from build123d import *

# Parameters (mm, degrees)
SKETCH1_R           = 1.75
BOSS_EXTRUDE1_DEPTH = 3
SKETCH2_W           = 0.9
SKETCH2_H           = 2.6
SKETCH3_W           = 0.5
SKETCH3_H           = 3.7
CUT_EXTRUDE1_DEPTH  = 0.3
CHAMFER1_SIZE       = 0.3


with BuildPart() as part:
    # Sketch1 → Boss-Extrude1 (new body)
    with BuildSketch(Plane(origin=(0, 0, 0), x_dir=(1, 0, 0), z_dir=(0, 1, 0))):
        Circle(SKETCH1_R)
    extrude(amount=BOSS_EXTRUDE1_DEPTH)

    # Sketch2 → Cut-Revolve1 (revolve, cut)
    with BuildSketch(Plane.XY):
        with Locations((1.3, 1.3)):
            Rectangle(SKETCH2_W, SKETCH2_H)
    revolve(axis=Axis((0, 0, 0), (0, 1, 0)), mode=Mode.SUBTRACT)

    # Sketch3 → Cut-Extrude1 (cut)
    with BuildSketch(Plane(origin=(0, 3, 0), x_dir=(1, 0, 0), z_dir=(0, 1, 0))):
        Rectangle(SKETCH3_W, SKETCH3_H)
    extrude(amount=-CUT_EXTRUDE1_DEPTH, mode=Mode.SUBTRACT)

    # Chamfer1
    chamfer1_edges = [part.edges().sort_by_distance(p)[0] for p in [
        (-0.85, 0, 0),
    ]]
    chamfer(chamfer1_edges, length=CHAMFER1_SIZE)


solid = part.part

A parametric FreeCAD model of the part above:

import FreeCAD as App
import Part
import Sketcher
from FreeCAD import Vector


def edges_at(feature, points):
    """Names of the edges that pass closest to the given points."""
    edges = feature.Shape.Edges
    near = lambda p: min(range(len(edges)), key=lambda i: edges[i].distToShape(Part.Vertex(*p))[0])
    return sorted({f"Edge{near(p) + 1}" for p in points})


def add_polygon(sketch, points):
    """Adds a closed chain of lines whose ends are joined by coincident constraints."""
    first, n = sketch.GeometryCount, len(points)
    for a, b in zip(points, points[1:] + points[:1]):
        sketch.addGeometry(Part.LineSegment(App.Vector(*a, 0), App.Vector(*b, 0)), False)
    for i in range(n):
        sketch.addConstraint(Sketcher.Constraint("Coincident", first + i, 2, first + (i + 1) % n, 1))

doc = App.newDocument("Part")
params = doc.addObject("Spreadsheet::Sheet", "Params")
for row, (alias, value) in enumerate([
    ("sketch1_diameter", "3.5 mm"),
    ("pad1_length", "3 mm"),
    ("sketch2_width", "0.9 mm"),
    ("sketch2_height", "2.6 mm"),
    ("groove_angle", "360 deg"),
    ("sketch3_width", "0.5 mm"),
    ("sketch3_height", "3.7 mm"),
    ("pocket1_length", "0.3 mm"),
    ("chamfer_size", "0.3 mm"),
], start=1):
    params.set(f"A{row}", alias)
    params.set(f"B{row}", "=" + value)
    params.setAlias(f"B{row}", alias)

body = doc.addObject("PartDesign::Body", "Body")

sketch1 = doc.addObject("Sketcher::SketchObject", "Sketch")
body.addObject(sketch1)
sketch1.AttachmentSupport = (doc.XZ_Plane, [""])
sketch1.MapMode = "FlatFace"
sketch1.addGeometry(Part.Circle(Vector(0, 0, 0), Vector(0, 0, 1), 1.8), False)
sketch1.addConstraint([
    Sketcher.Constraint("Coincident", 0, 3, -1, 1),
    Sketcher.Constraint("Diameter", 0, 3.5),
])
sketch1.setExpression("Constraints[1]", "Params.sketch1_diameter")
pad1 = doc.addObject("PartDesign::Pad", "Pad")
body.addObject(pad1)
pad1.Profile = sketch1
pad1.setExpression("Length", "Params.pad1_length")
pad1.Reversed = True

sketch2 = doc.addObject("Sketcher::SketchObject", "Sketch001")
body.addObject(sketch2)
sketch2.AttachmentSupport = (doc.XY_Plane, [""])
sketch2.MapMode = "FlatFace"
add_polygon(sketch2, [(0.8, 2.6), (0.8, 0), (1.8, 0), (1.8, 2.6)])
sketch2.addConstraint([
    Sketcher.Constraint("Vertical", 0),
    Sketcher.Constraint("Horizontal", 1),
    Sketcher.Constraint("Vertical", 2),
    Sketcher.Constraint("Horizontal", 3),
    Sketcher.Constraint("PointOnObject", 0, 2, -1),
    Sketcher.Constraint("DistanceX", 1, 1, 1, 2, 0.9),
    Sketcher.Constraint("DistanceY", 0, 2, 0, 1, 2.6),
    Sketcher.Constraint("DistanceX", -1, 1, 0, 2, 0.85),
])
sketch2.setExpression("Constraints[9]", "Params.sketch2_width")
sketch2.setExpression("Constraints[10]", "Params.sketch2_height")
groove = doc.addObject("PartDesign::Groove", "Groove")
body.addObject(groove)
groove.Profile = sketch2
groove.ReferenceAxis = (sketch2, ["V_Axis"])
groove.setExpression("Angle", "Params.groove_angle")

sketch3 = doc.addObject("Sketcher::SketchObject", "Sketch002")
body.addObject(sketch3)
sketch3.AttachmentSupport = (doc.XZ_Plane, [""])
sketch3.MapMode = "FlatFace"
sketch3.AttachmentOffset = App.Placement(Vector(0, 0, -3), App.Rotation())
add_polygon(sketch3, [(-0.2, -1.9), (-0.2, 1.9), (0.2, 1.9), (0.2, -1.9)])
sketch3.addConstraint([
    Sketcher.Constraint("Vertical", 0),
    Sketcher.Constraint("Horizontal", 1),
    Sketcher.Constraint("Vertical", 2),
    Sketcher.Constraint("Horizontal", 3),
    Sketcher.Constraint("Symmetric", 0, 2, 2, 2, -1, 1),
    Sketcher.Constraint("DistanceX", 1, 1, 1, 2, 0.5),
    Sketcher.Constraint("DistanceY", 0, 1, 0, 2, 3.7),
])
sketch3.setExpression("Constraints[9]", "Params.sketch3_width")
sketch3.setExpression("Constraints[10]", "Params.sketch3_height")
pocket1 = doc.addObject("PartDesign::Pocket", "Pocket")
body.addObject(pocket1)
pocket1.Profile = sketch3
pocket1.setExpression("Length", "Params.pocket1_length")
pocket1.Reversed = True
doc.recompute()

chamfer = doc.addObject("PartDesign::Chamfer", "Chamfer")
body.addObject(chamfer)
chamfer.Base = (pocket1, edges_at(pocket1, [(-0.85, 0, 0)]))
chamfer.setExpression("Size", "Params.chamfer_size")

doc.recompute()
